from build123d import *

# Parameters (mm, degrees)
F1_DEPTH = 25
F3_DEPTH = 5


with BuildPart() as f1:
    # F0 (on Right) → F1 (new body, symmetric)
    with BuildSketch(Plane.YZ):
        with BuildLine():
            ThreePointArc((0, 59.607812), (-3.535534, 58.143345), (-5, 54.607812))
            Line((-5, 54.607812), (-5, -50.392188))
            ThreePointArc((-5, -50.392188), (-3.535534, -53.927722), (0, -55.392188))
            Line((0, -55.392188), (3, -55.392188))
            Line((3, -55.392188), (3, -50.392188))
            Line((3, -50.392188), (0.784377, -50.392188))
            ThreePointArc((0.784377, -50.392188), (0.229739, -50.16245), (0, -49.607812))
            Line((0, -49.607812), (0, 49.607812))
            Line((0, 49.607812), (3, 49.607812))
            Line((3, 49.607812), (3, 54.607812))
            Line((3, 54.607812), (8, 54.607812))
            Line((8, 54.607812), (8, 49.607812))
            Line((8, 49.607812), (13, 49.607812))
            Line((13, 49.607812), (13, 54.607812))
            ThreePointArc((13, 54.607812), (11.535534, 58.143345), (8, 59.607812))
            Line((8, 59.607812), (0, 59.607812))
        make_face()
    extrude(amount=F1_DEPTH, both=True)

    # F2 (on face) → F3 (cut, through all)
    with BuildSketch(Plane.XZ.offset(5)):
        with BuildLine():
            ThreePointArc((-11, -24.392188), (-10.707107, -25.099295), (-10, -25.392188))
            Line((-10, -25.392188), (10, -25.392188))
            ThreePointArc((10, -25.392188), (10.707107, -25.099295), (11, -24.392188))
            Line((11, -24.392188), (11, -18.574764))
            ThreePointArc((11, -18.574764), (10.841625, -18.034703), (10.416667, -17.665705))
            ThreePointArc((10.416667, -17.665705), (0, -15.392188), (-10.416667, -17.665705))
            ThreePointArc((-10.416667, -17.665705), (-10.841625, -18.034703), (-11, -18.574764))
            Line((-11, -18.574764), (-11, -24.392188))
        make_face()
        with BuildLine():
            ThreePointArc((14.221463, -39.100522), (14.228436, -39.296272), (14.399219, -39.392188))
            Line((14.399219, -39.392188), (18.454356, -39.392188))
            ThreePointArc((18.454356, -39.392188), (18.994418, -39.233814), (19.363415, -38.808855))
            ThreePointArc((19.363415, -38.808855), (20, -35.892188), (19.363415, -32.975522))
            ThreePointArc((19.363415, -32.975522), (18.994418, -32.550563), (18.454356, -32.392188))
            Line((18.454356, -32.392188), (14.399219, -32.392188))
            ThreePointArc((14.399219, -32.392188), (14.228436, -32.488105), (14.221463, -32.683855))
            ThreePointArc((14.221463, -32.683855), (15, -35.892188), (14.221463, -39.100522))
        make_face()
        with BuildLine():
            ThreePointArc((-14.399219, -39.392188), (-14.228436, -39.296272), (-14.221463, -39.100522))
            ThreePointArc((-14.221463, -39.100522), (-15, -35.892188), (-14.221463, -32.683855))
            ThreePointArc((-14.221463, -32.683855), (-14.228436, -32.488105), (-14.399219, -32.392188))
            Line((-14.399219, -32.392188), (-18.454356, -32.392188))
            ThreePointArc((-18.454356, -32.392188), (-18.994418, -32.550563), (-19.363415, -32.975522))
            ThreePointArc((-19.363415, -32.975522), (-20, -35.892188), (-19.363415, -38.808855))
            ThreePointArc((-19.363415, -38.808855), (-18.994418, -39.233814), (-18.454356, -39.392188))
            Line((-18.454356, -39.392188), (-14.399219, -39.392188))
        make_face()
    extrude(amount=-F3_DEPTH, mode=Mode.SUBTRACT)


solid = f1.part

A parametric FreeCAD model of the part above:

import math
import FreeCAD as App
import Part
import Sketcher

V = App.Vector

doc = App.newDocument("Part")
params = doc.addObject("Spreadsheet::Sheet", "Params")
for row, (alias, value) in enumerate([
    ("sketch1_radius", "5.000001 mm"),
    ("sketch1_width", "3 mm"),
    ("sketch1_height", "105 mm"),
    ("pad1_length", "50 mm"),
    ("sketch2_radius", "0.999999 mm"),
    ("sketch2_radius2", "0.199999 mm"),
    ("sketch2_width", "20 mm"),
], start=1):
    params.set(f"A{row}", alias)
    params.set(f"B{row}", "=" + value)
    params.setAlias(f"B{row}", alias)

body = doc.addObject("PartDesign::Body", "Body")

# Sketch on YZ plane
sketch1 = body.newObject("Sketcher::SketchObject", "Sketch")
sketch1.AttachmentSupport = (doc.getObject("YZ_Plane"), [""])
sketch1.MapMode = "FlatFace"
sketch1.addGeometry(Part.ArcOfCircle(Part.Circle(V(0, 54.6, 0), V(0, 0, 1), 5), math.radians(90), math.radians(180)), False)
sketch1.addGeometry(Part.LineSegment(V(-5, 54.6, 0), V(-5, -50.4, 0)), False)
sketch1.addGeometry(Part.ArcOfCircle(Part.Circle(V(0, -50.4, 0), V(0, 0, 1), 5), math.radians(180), math.radians(270)), False)
sketch1.addGeometry(Part.LineSegment(V(0, -55.4, 0), V(3, -55.4, 0)), False)
sketch1.addGeometry(Part.LineSegment(V(3, -55.4, 0), V(3, -50.4, 0)), False)
sketch1.addGeometry(Part.LineSegment(V(3, -50.4, 0), V(0.8, -50.4, 0)), False)
sketch1.addGeometry(Part.ArcOfCircle(Part.Circle(V(0.8, -49.6, 0), V(0, 0, 1), 0.8), math.radians(-180), math.radians(-90)), False)
sketch1.addGeometry(Part.LineSegment(V(0, -49.6, 0), V(0, 49.6, 0)), False)
sketch1.addGeometry(Part.LineSegment(V(0, 49.6, 0), V(3, 49.6, 0)), False)
sketch1.addGeometry(Part.LineSegment(V(3, 49.6, 0), V(3, 54.6, 0)), False)
sketch1.addGeometry(Part.LineSegment(V(3, 54.6, 0), V(8, 54.6, 0)), False)
sketch1.addGeometry(Part.LineSegment(V(8, 54.6, 0), V(8, 49.6, 0)), False)
sketch1.addGeometry(Part.LineSegment(V(8, 49.6, 0), V(13, 49.6, 0)), False)
sketch1.addGeometry(Part.LineSegment(V(13, 49.6, 0), V(13, 54.6, 0)), False)
sketch1.addGeometry(Part.ArcOfCircle(Part.Circle(V(8, 54.6, 0), V(0, 0, 1), 5), math.radians(0), math.radians(90)), False)
sketch1.addGeometry(Part.LineSegment(V(8, 59.6, 0), V(0, 59.6, 0)), False)
sketch1.addConstraint(Sketcher.Constraint("Tangent", 0, 2, 1, 1))
sketch1.addConstraint(Sketcher.Constraint("Tangent", 1, 2, 2, 1))
sketch1.addConstraint(Sketcher.Constraint("Tangent", 2, 2, 3, 1))
sketch1.addConstraint(Sketcher.Constraint("Coincident", 3, 2, 4, 1))
sketch1.addConstraint(Sketcher.Constraint("Coincident", 4, 2, 5, 1))
sketch1.addConstraint(Sketcher.Constraint("Tangent", 5, 2, 6, 2))
sketch1.addConstraint(Sketcher.Constraint("Tangent", 6, 1, 7, 1))
sketch1.addConstraint(Sketcher.Constraint("Coincident", 7, 2, 8, 1))
sketch1.addConstraint(Sketcher.Constraint("Coincident", 8, 2, 9, 1))
sketch1.addConstraint(Sketcher.Constraint("Coincident", 9, 2, 10, 1))
sketch1.addConstraint(Sketcher.Constraint("Coincident", 10, 2, 11, 1))
sketch1.addConstraint(Sketcher.Constraint("Coincident", 11, 2, 12, 1))
sketch1.addConstraint(Sketcher.Constraint("Coincident", 12, 2, 13, 1))
sketch1.addConstraint(Sketcher.Constraint("Tangent", 13, 2, 14, 1))
sketch1.addConstraint(Sketcher.Constraint("Tangent", 14, 2, 15, 1))
sketch1.addConstraint(Sketcher.Constraint("Tangent", 15, 2, 0, 1))
sketch1.addConstraint(Sketcher.Constraint("Vertical", 1))
sketch1.addConstraint(Sketcher.Constraint("Horizontal", 3))
sketch1.addConstraint(Sketcher.Constraint("Vertical", 4))
sketch1.addConstraint(Sketcher.Constraint("Horizontal", 5))
sketch1.addConstraint(Sketcher.Constraint("Vertical", 7))
sketch1.addConstraint(Sketcher.Constraint("Horizontal", 8))
sketch1.addConstraint(Sketcher.Constraint("Vertical", 9))
sketch1.addConstraint(Sketcher.Constraint("Horizontal", 10))
sketch1.addConstraint(Sketcher.Constraint("Vertical", 11))
sketch1.addConstraint(Sketcher.Constraint("Horizontal", 12))
sketch1.addConstraint(Sketcher.Constraint("Vertical", 13))
sketch1.addConstraint(Sketcher.Constraint("Horizontal", 15))
sketch1.addConstraint(Sketcher.Constraint("Coincident", 10, 2, 14, 3))
sketch1.addConstraint(Sketcher.Constraint("Equal", 0, 2))
sketch1.addConstraint(Sketcher.Constraint("Equal", 2, 14))
sketch1.addConstraint(Sketcher.Constraint("Symmetric", 6, 1, 7, 2, -1, 1))
sketch1.addConstraint(Sketcher.Constraint("PointOnObject", 0, 3, -2))
sketch1.addConstraint(Sketcher.Constraint("Horizontal", 1, 2, 4, 2))
sketch1.addConstraint(Sketcher.Constraint("Horizontal", 8, 2, 11, 2))
sketch1.addConstraint(Sketcher.Constraint("Vertical", 4, 2, 8, 2))
sketch1.addConstraint(Sketcher.Constraint("Equal", 10, 12))
sketch1.addConstraint(Sketcher.Constraint("Equal", 4, 9))
sketch1.addConstraint(Sketcher.Constraint("Radius", 0, 5.000001))
sketch1.addConstraint(Sketcher.Constraint("DistanceX", 3, 1, 3, 2, 3.0))
sketch1.addConstraint(Sketcher.Constraint("DistanceY", 1, 2, 1, 1, 105.0))
sketch1.addConstraint(Sketcher.Constraint("Radius", 6, 0.784376))
sketch1.setExpression("Constraints[38]", "Params.sketch1_radius")
sketch1.setExpression("Constraints[39]", "Params.sketch1_width")
sketch1.setExpression("Constraints[40]", "Params.sketch1_height")
pad1 = body.newObject("PartDesign::Pad", "Pad")
pad1.Profile = sketch1
pad1.setExpression("Length", "Params.pad1_length")
pad1.Midplane = True

# Sketch on XZ plane
sketch2 = body.newObject("Sketcher::SketchObject", "Sketch001")
sketch2.AttachmentSupport = (doc.getObject("XZ_Plane"), [""])
sketch2.MapMode = "FlatFace"
sketch2.AttachmentOffset = App.Placement(V(0, 0, 5), App.Rotation())
sketch2.addGeometry(Part.ArcOfCircle(Part.Circle(V(-10, -24.39, 0), V(0, 0, 1), 1), math.radians(180), math.radians(270)), False)
sketch2.addGeometry(Part.LineSegment(V(-10, -25.39, 0), V(10, -25.39, 0)), False)
sketch2.addGeometry(Part.ArcOfCircle(Part.Circle(V(10, -24.39, 0), V(0, 0, 1), 1), math.radians(-90), math.radians(0)), False)
sketch2.addGeometry(Part.LineSegment(V(11, -24.39, 0), V(11, -18.57, 0)), False)
sketch2.addGeometry(Part.ArcOfCircle(Part.Circle(V(10, -18.57, 0), V(0, 0, 1), 1), math.radians(0), math.radians(65)), False)
sketch2.addGeometry(Part.ArcOfCircle(Part.Circle(V(0, -40.39, 0), V(0, 0, 1), 25), math.radians(65), math.radians(115)), False)
sketch2.addGeometry(Part.ArcOfCircle(Part.Circle(V(-10, -18.57, 0), V(0, 0, 1), 1), math.radians(115), math.radians(180)), False)
sketch2.addGeometry(Part.LineSegment(V(-11, -18.57, 0), V(-11, -24.39, 0)), False)
sketch2.addGeometry(Part.ArcOfCircle(Part.Circle(V(14.4, -39.19, 0), V(0, 0, 1), 0.2), math.radians(153), math.radians(270)), False)
sketch2.addGeometry(Part.LineSegment(V(14.4, -39.39, 0), V(18.45, -39.39, 0)), False)
sketch2.addGeometry(Part.ArcOfCircle(Part.Circle(V(18.45, -38.39, 0), V(0, 0, 1), 1), math.radians(-90), math.radians(-25)), False)
sketch2.addGeometry(Part.ArcOfCircle(Part.Circle(V(13, -35.89, 0), V(0, 0, 1), 7), math.radians(-25), math.radians(25)), False)
sketch2.addGeometry(Part.ArcOfCircle(Part.Circle(V(18.45, -33.39, 0), V(0, 0, 1), 1), math.radians(25), math.radians(90)), False)
sketch2.addGeometry(Part.LineSegment(V(18.45, -32.39, 0), V(14.4, -32.39, 0)), False)
sketch2.addGeometry(Part.ArcOfCircle(Part.Circle(V(14.4, -32.59, 0), V(0, 0, 1), 0.2), math.radians(90), math.radians(207)), False)
sketch2.addGeometry(Part.ArcOfCircle(Part.Circle(V(8, -35.89, 0), V(0, 0, 1), 7), math.radians(-27), math.radians(27)), False)
sketch2.addGeometry(Part.ArcOfCircle(Part.Circle(V(-14.4, -39.19, 0), V(0, 0, 1), 0.2), math.radians(-90), math.radians(27)), False)
sketch2.addGeometry(Part.ArcOfCircle(Part.Circle(V(-8, -35.89, 0), V(0, 0, 1), 7), math.radians(153), math.radians(207)), False)
sketch2.addGeometry(Part.ArcOfCircle(Part.Circle(V(-14.4, -32.59, 0), V(0, 0, 1), 0.2), math.radians(-27), math.radians(90)), False)
sketch2.addGeometry(Part.LineSegment(V(-14.4, -32.39, 0), V(-18.45, -32.39, 0)), False)
sketch2.addGeometry(Part.ArcOfCircle(Part.Circle(V(-18.45, -33.39, 0), V(0, 0, 1), 1), math.radians(90), math.radians(155)), False)
sketch2.addGeometry(Part.ArcOfCircle(Part.Circle(V(-13, -35.89, 0), V(0, 0, 1), 7), math.radians(155), math.radians(205)), False)
sketch2.addGeometry(Part.ArcOfCircle(Part.Circle(V(-18.45, -38.39, 0), V(0, 0, 1), 1), math.radians(-155), math.radians(-90)), False)
sketch2.addGeometry(Part.LineSegment(V(-18.45, -39.39, 0), V(-14.4, -39.39, 0)), False)
sketch2.addConstraint(Sketcher.Constraint("Tangent", 0, 2, 1, 1))
sketch2.addConstraint(Sketcher.Constraint("Tangent", 1, 2, 2, 1))
sketch2.addConstraint(Sketcher.Constraint("Tangent", 2, 2, 3, 1))
sketch2.addConstraint(Sketcher.Constraint("Coincident", 3, 2, 4, 1))
sketch2.addConstraint(Sketcher.Constraint("Coincident", 4, 2, 5, 1))
sketch2.addConstraint(Sketcher.Constraint("Coincident", 5, 2, 6, 1))
sketch2.addConstraint(Sketcher.Constraint("Coincident", 6, 2, 7, 1))
sketch2.addConstraint(Sketcher.Constraint("Tangent", 7, 2, 0, 1))
sketch2.addConstraint(Sketcher.Constraint("Coincident", 8, 2, 9, 1))
sketch2.addConstraint(Sketcher.Constraint("Coincident", 9, 2, 10, 1))
sketch2.addConstraint(Sketcher.Constraint("Coincident", 10, 2, 11, 1))
sketch2.addConstraint(Sketcher.Constraint("Tangent", 11, 2, 12, 1))
sketch2.addConstraint(Sketcher.Constraint("Tangent", 12, 2, 13, 1))
sketch2.addConstraint(Sketcher.Constraint("Coincident", 13, 2, 14, 1))
sketch2.addConstraint(Sketcher.Constraint("Coincident", 14, 2, 15, 2))
sketch2.addConstraint(Sketcher.Constraint("Coincident", 15, 1, 8, 1))
sketch2.addConstraint(Sketcher.Constraint("Coincident", 16, 2, 17, 2))
sketch2.addConstraint(Sketcher.Constraint("Coincident", 17, 1, 18, 1))
sketch2.addConstraint(Sketcher.Constraint("Coincident", 18, 2, 19, 1))
sketch2.addConstraint(Sketcher.Constraint("Tangent", 19, 2, 20, 1))
sketch2.addConstraint(Sketcher.Constraint("Tangent", 20, 2, 21, 1))
sketch2.addConstraint(Sketcher.Constraint("Coincident", 21, 2, 22, 1))
sketch2.addConstraint(Sketcher.Constraint("Coincident", 22, 2, 23, 1))
sketch2.addConstraint(Sketcher.Constraint("Coincident", 23, 2, 16, 1))
sketch2.addConstraint(Sketcher.Constraint("Horizontal", 1))
sketch2.addConstraint(Sketcher.Constraint("Vertical", 3))
sketch2.addConstraint(Sketcher.Constraint("Vertical", 7))
sketch2.addConstraint(Sketcher.Constraint("Horizontal", 9))
sketch2.addConstraint(Sketcher.Constraint("Horizontal", 13))
sketch2.addConstraint(Sketcher.Constraint("Horizontal", 19))
sketch2.addConstraint(Sketcher.Constraint("Horizontal", 23))
sketch2.addConstraint(Sketcher.Constraint("Equal", 0, 2))
sketch2.addConstraint(Sketcher.Constraint("Equal", 4, 6))
sketch2.addConstraint(Sketcher.Constraint("Equal", 2, 12))
sketch2.addConstraint(Sketcher.Constraint("Equal", 8, 14))
sketch2.addConstraint(Sketcher.Constraint("Equal", 14, 16))
sketch2.addConstraint(Sketcher.Constraint("Equal", 15, 17))
sketch2.addConstraint(Sketcher.Constraint("Equal", 16, 18))
sketch2.addConstraint(Sketcher.Constraint("Equal", 12, 20))
sketch2.addConstraint(Sketcher.Constraint("Equal", 11, 21))
sketch2.addConstraint(Sketcher.Constraint("Equal", 10, 22))
sketch2.addConstraint(Sketcher.Constraint("Symmetric", 4, 3, 6, 3, -2))
sketch2.addConstraint(Sketcher.Constraint("Symmetric", 8, 3, 16, 3, -2))
sketch2.addConstraint(Sketcher.Constraint("Symmetric", 14, 3, 18, 3, -2))
sketch2.addConstraint(Sketcher.Constraint("Symmetric", 11, 3, 21, 3, -2))
sketch2.addConstraint(Sketcher.Constraint("Horizontal", 11, 3, 15, 3))
sketch2.addConstraint(Sketcher.Constraint("Horizontal", 4, 2, 5, 2))
sketch2.addConstraint(Sketcher.Constraint("Horizontal", 3, 2, 6, 2))
sketch2.addConstraint(Sketcher.Constraint("Horizontal", 15, 1, 16, 2))
sketch2.addConstraint(Sketcher.Constraint("Horizontal", 14, 2, 17, 1))
sketch2.addConstraint(Sketcher.Constraint("Horizontal", 10, 2, 21, 2))
sketch2.addConstraint(Sketcher.Constraint("Vertical", 8, 3, 14, 3))
sketch2.addConstraint(Sketcher.Constraint("Vertical", 14, 3, 8, 2))
sketch2.addConstraint(Sketcher.Constraint("Vertical", 12, 3, 9, 2))
sketch2.addConstraint(Sketcher.Constraint("Vertical", 10, 2, 11, 2))
sketch2.addConstraint(Sketcher.Constraint("Vertical", 8, 2, 13, 2))
sketch2.addConstraint(Sketcher.Constraint("Vertical", 14, 2, 15, 1))
sketch2.addConstraint(Sketcher.Constraint("Vertical", 16, 3, 18, 2))
sketch2.addConstraint(Sketcher.Constraint("Vertical", 19, 2, 22, 2))
sketch2.addConstraint(Sketcher.Constraint("Vertical", 18, 2, 23, 2))
sketch2.addConstraint(Sketcher.Constraint("Radius", 0, 0.999999))
sketch2.addConstraint(Sketcher.Constraint("Radius", 8, 0.199999))
sketch2.addConstraint(Sketcher.Constraint("DistanceX", 1, 1, 1, 2, 20.0))
sketch2.addConstraint(Sketcher.Constraint("DistanceY", 12, 3, 2, 3, 8.999998))
sketch2.addConstraint(Sketcher.Constraint("DistanceX", 6, 3, 17, 3, 2.0))
sketch2.addConstraint(Sketcher.Constraint("DistanceY", 8, 2, 12, 3, 6.000001))
sketch2.addConstraint(Sketcher.Constraint("Radius", 4, 1.000003))
sketch2.addConstraint(Sketcher.Constraint("Radius", 5, 24.999996))
sketch2.addConstraint(Sketcher.Constraint("Radius", 10, 0.999996))
sketch2.addConstraint(Sketcher.Constraint("Radius", 11, 6.999995))
sketch2.addConstraint(Sketcher.Constraint("Radius", 15, 7.000004))
sketch2.addConstraint(Sketcher.Constraint("DistanceX", 9, 1, 9, 2, 4.055137))
sketch2.addConstraint(Sketcher.Constraint("DistanceY", 3, 1, 3, 2, 5.817424))
sketch2.addConstraint(Sketcher.Constraint("DistanceY", 0, 3, -1, 1, 24.392189))
sketch2.addConstraint(Sketcher.Constraint("DistanceY", 5, 3, 10, 3, 1.999992))
sketch2.addConstraint(Sketcher.Constraint("DistanceX", 4, 3, 4, 2, 0.41667))
sketch2.addConstraint(Sketcher.Constraint("DistanceX", 11, 3, 14, 2, 1.221458))
sketch2.setExpression("Constraints[60]", "Params.sketch2_radius")
sketch2.setExpression("Constraints[61]", "Params.sketch2_radius2")
sketch2.setExpression("Constraints[62]", "Params.sketch2_width")
pocket1 = body.newObject("PartDesign::Pocket", "Pocket")
pocket1.Profile = sketch2
pocket1.Type = "ThroughAll"

doc.recompute()
